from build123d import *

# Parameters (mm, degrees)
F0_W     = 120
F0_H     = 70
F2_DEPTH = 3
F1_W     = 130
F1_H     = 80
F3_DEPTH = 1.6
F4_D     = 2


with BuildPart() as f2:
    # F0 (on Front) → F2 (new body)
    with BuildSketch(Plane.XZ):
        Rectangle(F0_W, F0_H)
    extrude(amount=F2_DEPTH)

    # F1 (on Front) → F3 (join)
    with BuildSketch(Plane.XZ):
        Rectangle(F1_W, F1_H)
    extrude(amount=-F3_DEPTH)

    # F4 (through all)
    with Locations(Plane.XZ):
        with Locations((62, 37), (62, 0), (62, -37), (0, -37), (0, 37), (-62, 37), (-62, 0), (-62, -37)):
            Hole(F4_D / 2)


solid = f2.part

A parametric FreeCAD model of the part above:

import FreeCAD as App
import Part
import Sketcher
from FreeCAD import Vector
Q = App.Units.Quantity


def add_polygon(sketch, points):
    """Adds a closed chain of lines whose ends are joined by coincident constraints."""
    first, n = sketch.GeometryCount, len(points)
    for a, b in zip(points, points[1:] + points[:1]):
        sketch.addGeometry(Part.LineSegment(App.Vector(*a, 0), App.Vector(*b, 0)), False)
    for i in range(n):
        sketch.addConstraint(Sketcher.Constraint("Coincident", first + i, 2, first + (i + 1) % n, 1))

doc = App.newDocument("Part")
body = doc.addObject("PartDesign::Body", "Body")

# Sketch on XZ plane
sketch1 = body.newObject("Sketcher::SketchObject", "Sketch")
sketch1.AttachmentSupport = (doc.getObject("XZ_Plane"), [""])
sketch1.MapMode = "FlatFace"
add_polygon(sketch1, [(-60, 35), (-60, -35), (60, -35), (60, 35)])  # lines 0-3
sketch1.addConstraint([
    Sketcher.Constraint("Vertical", 0),
    Sketcher.Constraint("Horizontal", 1),
    Sketcher.Constraint("Vertical", 2),
    Sketcher.Constraint("Horizontal", 3),
    Sketcher.Constraint("Symmetric", 0, 2, 2, 2, -1, 1),
    Sketcher.Constraint("DistanceX", 1, 1, 1, 2, Q("120 mm")),
    Sketcher.Constraint("DistanceY", 0, 2, 0, 1, Q("70 mm")),
])
pad1 = body.newObject("PartDesign::Pad", "Pad")
pad1.Profile = sketch1
pad1.Length = 3

# Sketch on XZ plane
sketch2 = body.newObject("Sketcher::SketchObject", "Sketch001")
sketch2.AttachmentSupport = (doc.getObject("XZ_Plane"), [""])
sketch2.MapMode = "FlatFace"
add_polygon(sketch2, [(-65, 40), (-65, -40), (65, -40), (65, 40)])  # lines 0-3
sketch2.addConstraint([
    Sketcher.Constraint("Vertical", 0),
    Sketcher.Constraint("Horizontal", 1),
    Sketcher.Constraint("Vertical", 2),
    Sketcher.Constraint("Horizontal", 3),
    Sketcher.Constraint("Symmetric", 0, 2, 2, 2, -1, 1),
    Sketcher.Constraint("DistanceX", 1, 1, 1, 2, Q("130 mm")),
    Sketcher.Constraint("DistanceY", 0, 2, 0, 1, Q("80 mm")),
])
pad2 = body.newObject("PartDesign::Pad", "Pad001")
pad2.Profile = sketch2
pad2.Length = 1.6
pad2.Reversed = True

# Sketch on XZ plane
sketch3 = body.newObject("Sketcher::SketchObject", "Sketch002")
sketch3.AttachmentSupport = (doc.getObject("XZ_Plane"), [""])
sketch3.MapMode = "FlatFace"
sketch3.addGeometry([
    Part.Circle(Vector(62, 37, 0), Vector(0, 0, 1), 1),  # 0
    Part.Circle(Vector(62, 0, 0), Vector(0, 0, 1), 1),  # 1
    Part.Circle(Vector(62, -37, 0), Vector(0, 0, 1), 1),  # 2
    Part.Circle(Vector(0, -37, 0), Vector(0, 0, 1), 1),  # 3
    Part.Circle(Vector(0, 37, 0), Vector(0, 0, 1), 1),  # 4
    Part.Circle(Vector(-62, 37, 0), Vector(0, 0, 1), 1),  # 5
    Part.Circle(Vector(-62, 0, 0), Vector(0, 0, 1), 1),  # 6
    Part.Circle(Vector(-62, -37, 0), Vector(0, 0, 1), 1),  # 7
], False)
sketch3.addConstraint([
    Sketcher.Constraint("Equal", 0, 1),
    Sketcher.Constraint("Equal", 1, 2),
    Sketcher.Constraint("Equal", 2, 3),
    Sketcher.Constraint("Equal", 3, 4),
    Sketcher.Constraint("Equal", 4, 5),
    Sketcher.Constraint("Equal", 5, 6),
    Sketcher.Constraint("Equal", 6, 7),
    Sketcher.Constraint("Symmetric", 3, 3, 4, 3, -1, 1),
    Sketcher.Constraint("Symmetric", 2, 3, 5, 3, -1, 1),
    Sketcher.Constraint("Symmetric", 1, 3, 6, 3, -1, 1),
    Sketcher.Constraint("Symmetric", 0, 3, 7, 3, -1, 1),
    Sketcher.Constraint("Symmetric", 0, 3, 5, 3, -2),
    Sketcher.Constraint("PointOnObject", 1, 3, -1),
    Sketcher.Constraint("PointOnObject", 3, 3, -2),
    Sketcher.Constraint("Horizontal", 2, 3, 3, 3),
    Sketcher.Constraint("Vertical", 0, 3, 1, 3),
    Sketcher.Constraint("Diameter", 0, Q("2 mm")),
    Sketcher.Constraint("DistanceX", -1, 1, 0, 3, Q("62 mm")),
    Sketcher.Constraint("DistanceY", -1, 1, 0, 3, Q("37 mm")),
])
doc.recompute()
hole = body.newObject("PartDesign::Hole", "Hole")
hole.Profile = sketch3
hole.ThreadType = "None"
hole.Diameter = 2
hole.DepthType = "ThroughAll"

doc.recompute()
